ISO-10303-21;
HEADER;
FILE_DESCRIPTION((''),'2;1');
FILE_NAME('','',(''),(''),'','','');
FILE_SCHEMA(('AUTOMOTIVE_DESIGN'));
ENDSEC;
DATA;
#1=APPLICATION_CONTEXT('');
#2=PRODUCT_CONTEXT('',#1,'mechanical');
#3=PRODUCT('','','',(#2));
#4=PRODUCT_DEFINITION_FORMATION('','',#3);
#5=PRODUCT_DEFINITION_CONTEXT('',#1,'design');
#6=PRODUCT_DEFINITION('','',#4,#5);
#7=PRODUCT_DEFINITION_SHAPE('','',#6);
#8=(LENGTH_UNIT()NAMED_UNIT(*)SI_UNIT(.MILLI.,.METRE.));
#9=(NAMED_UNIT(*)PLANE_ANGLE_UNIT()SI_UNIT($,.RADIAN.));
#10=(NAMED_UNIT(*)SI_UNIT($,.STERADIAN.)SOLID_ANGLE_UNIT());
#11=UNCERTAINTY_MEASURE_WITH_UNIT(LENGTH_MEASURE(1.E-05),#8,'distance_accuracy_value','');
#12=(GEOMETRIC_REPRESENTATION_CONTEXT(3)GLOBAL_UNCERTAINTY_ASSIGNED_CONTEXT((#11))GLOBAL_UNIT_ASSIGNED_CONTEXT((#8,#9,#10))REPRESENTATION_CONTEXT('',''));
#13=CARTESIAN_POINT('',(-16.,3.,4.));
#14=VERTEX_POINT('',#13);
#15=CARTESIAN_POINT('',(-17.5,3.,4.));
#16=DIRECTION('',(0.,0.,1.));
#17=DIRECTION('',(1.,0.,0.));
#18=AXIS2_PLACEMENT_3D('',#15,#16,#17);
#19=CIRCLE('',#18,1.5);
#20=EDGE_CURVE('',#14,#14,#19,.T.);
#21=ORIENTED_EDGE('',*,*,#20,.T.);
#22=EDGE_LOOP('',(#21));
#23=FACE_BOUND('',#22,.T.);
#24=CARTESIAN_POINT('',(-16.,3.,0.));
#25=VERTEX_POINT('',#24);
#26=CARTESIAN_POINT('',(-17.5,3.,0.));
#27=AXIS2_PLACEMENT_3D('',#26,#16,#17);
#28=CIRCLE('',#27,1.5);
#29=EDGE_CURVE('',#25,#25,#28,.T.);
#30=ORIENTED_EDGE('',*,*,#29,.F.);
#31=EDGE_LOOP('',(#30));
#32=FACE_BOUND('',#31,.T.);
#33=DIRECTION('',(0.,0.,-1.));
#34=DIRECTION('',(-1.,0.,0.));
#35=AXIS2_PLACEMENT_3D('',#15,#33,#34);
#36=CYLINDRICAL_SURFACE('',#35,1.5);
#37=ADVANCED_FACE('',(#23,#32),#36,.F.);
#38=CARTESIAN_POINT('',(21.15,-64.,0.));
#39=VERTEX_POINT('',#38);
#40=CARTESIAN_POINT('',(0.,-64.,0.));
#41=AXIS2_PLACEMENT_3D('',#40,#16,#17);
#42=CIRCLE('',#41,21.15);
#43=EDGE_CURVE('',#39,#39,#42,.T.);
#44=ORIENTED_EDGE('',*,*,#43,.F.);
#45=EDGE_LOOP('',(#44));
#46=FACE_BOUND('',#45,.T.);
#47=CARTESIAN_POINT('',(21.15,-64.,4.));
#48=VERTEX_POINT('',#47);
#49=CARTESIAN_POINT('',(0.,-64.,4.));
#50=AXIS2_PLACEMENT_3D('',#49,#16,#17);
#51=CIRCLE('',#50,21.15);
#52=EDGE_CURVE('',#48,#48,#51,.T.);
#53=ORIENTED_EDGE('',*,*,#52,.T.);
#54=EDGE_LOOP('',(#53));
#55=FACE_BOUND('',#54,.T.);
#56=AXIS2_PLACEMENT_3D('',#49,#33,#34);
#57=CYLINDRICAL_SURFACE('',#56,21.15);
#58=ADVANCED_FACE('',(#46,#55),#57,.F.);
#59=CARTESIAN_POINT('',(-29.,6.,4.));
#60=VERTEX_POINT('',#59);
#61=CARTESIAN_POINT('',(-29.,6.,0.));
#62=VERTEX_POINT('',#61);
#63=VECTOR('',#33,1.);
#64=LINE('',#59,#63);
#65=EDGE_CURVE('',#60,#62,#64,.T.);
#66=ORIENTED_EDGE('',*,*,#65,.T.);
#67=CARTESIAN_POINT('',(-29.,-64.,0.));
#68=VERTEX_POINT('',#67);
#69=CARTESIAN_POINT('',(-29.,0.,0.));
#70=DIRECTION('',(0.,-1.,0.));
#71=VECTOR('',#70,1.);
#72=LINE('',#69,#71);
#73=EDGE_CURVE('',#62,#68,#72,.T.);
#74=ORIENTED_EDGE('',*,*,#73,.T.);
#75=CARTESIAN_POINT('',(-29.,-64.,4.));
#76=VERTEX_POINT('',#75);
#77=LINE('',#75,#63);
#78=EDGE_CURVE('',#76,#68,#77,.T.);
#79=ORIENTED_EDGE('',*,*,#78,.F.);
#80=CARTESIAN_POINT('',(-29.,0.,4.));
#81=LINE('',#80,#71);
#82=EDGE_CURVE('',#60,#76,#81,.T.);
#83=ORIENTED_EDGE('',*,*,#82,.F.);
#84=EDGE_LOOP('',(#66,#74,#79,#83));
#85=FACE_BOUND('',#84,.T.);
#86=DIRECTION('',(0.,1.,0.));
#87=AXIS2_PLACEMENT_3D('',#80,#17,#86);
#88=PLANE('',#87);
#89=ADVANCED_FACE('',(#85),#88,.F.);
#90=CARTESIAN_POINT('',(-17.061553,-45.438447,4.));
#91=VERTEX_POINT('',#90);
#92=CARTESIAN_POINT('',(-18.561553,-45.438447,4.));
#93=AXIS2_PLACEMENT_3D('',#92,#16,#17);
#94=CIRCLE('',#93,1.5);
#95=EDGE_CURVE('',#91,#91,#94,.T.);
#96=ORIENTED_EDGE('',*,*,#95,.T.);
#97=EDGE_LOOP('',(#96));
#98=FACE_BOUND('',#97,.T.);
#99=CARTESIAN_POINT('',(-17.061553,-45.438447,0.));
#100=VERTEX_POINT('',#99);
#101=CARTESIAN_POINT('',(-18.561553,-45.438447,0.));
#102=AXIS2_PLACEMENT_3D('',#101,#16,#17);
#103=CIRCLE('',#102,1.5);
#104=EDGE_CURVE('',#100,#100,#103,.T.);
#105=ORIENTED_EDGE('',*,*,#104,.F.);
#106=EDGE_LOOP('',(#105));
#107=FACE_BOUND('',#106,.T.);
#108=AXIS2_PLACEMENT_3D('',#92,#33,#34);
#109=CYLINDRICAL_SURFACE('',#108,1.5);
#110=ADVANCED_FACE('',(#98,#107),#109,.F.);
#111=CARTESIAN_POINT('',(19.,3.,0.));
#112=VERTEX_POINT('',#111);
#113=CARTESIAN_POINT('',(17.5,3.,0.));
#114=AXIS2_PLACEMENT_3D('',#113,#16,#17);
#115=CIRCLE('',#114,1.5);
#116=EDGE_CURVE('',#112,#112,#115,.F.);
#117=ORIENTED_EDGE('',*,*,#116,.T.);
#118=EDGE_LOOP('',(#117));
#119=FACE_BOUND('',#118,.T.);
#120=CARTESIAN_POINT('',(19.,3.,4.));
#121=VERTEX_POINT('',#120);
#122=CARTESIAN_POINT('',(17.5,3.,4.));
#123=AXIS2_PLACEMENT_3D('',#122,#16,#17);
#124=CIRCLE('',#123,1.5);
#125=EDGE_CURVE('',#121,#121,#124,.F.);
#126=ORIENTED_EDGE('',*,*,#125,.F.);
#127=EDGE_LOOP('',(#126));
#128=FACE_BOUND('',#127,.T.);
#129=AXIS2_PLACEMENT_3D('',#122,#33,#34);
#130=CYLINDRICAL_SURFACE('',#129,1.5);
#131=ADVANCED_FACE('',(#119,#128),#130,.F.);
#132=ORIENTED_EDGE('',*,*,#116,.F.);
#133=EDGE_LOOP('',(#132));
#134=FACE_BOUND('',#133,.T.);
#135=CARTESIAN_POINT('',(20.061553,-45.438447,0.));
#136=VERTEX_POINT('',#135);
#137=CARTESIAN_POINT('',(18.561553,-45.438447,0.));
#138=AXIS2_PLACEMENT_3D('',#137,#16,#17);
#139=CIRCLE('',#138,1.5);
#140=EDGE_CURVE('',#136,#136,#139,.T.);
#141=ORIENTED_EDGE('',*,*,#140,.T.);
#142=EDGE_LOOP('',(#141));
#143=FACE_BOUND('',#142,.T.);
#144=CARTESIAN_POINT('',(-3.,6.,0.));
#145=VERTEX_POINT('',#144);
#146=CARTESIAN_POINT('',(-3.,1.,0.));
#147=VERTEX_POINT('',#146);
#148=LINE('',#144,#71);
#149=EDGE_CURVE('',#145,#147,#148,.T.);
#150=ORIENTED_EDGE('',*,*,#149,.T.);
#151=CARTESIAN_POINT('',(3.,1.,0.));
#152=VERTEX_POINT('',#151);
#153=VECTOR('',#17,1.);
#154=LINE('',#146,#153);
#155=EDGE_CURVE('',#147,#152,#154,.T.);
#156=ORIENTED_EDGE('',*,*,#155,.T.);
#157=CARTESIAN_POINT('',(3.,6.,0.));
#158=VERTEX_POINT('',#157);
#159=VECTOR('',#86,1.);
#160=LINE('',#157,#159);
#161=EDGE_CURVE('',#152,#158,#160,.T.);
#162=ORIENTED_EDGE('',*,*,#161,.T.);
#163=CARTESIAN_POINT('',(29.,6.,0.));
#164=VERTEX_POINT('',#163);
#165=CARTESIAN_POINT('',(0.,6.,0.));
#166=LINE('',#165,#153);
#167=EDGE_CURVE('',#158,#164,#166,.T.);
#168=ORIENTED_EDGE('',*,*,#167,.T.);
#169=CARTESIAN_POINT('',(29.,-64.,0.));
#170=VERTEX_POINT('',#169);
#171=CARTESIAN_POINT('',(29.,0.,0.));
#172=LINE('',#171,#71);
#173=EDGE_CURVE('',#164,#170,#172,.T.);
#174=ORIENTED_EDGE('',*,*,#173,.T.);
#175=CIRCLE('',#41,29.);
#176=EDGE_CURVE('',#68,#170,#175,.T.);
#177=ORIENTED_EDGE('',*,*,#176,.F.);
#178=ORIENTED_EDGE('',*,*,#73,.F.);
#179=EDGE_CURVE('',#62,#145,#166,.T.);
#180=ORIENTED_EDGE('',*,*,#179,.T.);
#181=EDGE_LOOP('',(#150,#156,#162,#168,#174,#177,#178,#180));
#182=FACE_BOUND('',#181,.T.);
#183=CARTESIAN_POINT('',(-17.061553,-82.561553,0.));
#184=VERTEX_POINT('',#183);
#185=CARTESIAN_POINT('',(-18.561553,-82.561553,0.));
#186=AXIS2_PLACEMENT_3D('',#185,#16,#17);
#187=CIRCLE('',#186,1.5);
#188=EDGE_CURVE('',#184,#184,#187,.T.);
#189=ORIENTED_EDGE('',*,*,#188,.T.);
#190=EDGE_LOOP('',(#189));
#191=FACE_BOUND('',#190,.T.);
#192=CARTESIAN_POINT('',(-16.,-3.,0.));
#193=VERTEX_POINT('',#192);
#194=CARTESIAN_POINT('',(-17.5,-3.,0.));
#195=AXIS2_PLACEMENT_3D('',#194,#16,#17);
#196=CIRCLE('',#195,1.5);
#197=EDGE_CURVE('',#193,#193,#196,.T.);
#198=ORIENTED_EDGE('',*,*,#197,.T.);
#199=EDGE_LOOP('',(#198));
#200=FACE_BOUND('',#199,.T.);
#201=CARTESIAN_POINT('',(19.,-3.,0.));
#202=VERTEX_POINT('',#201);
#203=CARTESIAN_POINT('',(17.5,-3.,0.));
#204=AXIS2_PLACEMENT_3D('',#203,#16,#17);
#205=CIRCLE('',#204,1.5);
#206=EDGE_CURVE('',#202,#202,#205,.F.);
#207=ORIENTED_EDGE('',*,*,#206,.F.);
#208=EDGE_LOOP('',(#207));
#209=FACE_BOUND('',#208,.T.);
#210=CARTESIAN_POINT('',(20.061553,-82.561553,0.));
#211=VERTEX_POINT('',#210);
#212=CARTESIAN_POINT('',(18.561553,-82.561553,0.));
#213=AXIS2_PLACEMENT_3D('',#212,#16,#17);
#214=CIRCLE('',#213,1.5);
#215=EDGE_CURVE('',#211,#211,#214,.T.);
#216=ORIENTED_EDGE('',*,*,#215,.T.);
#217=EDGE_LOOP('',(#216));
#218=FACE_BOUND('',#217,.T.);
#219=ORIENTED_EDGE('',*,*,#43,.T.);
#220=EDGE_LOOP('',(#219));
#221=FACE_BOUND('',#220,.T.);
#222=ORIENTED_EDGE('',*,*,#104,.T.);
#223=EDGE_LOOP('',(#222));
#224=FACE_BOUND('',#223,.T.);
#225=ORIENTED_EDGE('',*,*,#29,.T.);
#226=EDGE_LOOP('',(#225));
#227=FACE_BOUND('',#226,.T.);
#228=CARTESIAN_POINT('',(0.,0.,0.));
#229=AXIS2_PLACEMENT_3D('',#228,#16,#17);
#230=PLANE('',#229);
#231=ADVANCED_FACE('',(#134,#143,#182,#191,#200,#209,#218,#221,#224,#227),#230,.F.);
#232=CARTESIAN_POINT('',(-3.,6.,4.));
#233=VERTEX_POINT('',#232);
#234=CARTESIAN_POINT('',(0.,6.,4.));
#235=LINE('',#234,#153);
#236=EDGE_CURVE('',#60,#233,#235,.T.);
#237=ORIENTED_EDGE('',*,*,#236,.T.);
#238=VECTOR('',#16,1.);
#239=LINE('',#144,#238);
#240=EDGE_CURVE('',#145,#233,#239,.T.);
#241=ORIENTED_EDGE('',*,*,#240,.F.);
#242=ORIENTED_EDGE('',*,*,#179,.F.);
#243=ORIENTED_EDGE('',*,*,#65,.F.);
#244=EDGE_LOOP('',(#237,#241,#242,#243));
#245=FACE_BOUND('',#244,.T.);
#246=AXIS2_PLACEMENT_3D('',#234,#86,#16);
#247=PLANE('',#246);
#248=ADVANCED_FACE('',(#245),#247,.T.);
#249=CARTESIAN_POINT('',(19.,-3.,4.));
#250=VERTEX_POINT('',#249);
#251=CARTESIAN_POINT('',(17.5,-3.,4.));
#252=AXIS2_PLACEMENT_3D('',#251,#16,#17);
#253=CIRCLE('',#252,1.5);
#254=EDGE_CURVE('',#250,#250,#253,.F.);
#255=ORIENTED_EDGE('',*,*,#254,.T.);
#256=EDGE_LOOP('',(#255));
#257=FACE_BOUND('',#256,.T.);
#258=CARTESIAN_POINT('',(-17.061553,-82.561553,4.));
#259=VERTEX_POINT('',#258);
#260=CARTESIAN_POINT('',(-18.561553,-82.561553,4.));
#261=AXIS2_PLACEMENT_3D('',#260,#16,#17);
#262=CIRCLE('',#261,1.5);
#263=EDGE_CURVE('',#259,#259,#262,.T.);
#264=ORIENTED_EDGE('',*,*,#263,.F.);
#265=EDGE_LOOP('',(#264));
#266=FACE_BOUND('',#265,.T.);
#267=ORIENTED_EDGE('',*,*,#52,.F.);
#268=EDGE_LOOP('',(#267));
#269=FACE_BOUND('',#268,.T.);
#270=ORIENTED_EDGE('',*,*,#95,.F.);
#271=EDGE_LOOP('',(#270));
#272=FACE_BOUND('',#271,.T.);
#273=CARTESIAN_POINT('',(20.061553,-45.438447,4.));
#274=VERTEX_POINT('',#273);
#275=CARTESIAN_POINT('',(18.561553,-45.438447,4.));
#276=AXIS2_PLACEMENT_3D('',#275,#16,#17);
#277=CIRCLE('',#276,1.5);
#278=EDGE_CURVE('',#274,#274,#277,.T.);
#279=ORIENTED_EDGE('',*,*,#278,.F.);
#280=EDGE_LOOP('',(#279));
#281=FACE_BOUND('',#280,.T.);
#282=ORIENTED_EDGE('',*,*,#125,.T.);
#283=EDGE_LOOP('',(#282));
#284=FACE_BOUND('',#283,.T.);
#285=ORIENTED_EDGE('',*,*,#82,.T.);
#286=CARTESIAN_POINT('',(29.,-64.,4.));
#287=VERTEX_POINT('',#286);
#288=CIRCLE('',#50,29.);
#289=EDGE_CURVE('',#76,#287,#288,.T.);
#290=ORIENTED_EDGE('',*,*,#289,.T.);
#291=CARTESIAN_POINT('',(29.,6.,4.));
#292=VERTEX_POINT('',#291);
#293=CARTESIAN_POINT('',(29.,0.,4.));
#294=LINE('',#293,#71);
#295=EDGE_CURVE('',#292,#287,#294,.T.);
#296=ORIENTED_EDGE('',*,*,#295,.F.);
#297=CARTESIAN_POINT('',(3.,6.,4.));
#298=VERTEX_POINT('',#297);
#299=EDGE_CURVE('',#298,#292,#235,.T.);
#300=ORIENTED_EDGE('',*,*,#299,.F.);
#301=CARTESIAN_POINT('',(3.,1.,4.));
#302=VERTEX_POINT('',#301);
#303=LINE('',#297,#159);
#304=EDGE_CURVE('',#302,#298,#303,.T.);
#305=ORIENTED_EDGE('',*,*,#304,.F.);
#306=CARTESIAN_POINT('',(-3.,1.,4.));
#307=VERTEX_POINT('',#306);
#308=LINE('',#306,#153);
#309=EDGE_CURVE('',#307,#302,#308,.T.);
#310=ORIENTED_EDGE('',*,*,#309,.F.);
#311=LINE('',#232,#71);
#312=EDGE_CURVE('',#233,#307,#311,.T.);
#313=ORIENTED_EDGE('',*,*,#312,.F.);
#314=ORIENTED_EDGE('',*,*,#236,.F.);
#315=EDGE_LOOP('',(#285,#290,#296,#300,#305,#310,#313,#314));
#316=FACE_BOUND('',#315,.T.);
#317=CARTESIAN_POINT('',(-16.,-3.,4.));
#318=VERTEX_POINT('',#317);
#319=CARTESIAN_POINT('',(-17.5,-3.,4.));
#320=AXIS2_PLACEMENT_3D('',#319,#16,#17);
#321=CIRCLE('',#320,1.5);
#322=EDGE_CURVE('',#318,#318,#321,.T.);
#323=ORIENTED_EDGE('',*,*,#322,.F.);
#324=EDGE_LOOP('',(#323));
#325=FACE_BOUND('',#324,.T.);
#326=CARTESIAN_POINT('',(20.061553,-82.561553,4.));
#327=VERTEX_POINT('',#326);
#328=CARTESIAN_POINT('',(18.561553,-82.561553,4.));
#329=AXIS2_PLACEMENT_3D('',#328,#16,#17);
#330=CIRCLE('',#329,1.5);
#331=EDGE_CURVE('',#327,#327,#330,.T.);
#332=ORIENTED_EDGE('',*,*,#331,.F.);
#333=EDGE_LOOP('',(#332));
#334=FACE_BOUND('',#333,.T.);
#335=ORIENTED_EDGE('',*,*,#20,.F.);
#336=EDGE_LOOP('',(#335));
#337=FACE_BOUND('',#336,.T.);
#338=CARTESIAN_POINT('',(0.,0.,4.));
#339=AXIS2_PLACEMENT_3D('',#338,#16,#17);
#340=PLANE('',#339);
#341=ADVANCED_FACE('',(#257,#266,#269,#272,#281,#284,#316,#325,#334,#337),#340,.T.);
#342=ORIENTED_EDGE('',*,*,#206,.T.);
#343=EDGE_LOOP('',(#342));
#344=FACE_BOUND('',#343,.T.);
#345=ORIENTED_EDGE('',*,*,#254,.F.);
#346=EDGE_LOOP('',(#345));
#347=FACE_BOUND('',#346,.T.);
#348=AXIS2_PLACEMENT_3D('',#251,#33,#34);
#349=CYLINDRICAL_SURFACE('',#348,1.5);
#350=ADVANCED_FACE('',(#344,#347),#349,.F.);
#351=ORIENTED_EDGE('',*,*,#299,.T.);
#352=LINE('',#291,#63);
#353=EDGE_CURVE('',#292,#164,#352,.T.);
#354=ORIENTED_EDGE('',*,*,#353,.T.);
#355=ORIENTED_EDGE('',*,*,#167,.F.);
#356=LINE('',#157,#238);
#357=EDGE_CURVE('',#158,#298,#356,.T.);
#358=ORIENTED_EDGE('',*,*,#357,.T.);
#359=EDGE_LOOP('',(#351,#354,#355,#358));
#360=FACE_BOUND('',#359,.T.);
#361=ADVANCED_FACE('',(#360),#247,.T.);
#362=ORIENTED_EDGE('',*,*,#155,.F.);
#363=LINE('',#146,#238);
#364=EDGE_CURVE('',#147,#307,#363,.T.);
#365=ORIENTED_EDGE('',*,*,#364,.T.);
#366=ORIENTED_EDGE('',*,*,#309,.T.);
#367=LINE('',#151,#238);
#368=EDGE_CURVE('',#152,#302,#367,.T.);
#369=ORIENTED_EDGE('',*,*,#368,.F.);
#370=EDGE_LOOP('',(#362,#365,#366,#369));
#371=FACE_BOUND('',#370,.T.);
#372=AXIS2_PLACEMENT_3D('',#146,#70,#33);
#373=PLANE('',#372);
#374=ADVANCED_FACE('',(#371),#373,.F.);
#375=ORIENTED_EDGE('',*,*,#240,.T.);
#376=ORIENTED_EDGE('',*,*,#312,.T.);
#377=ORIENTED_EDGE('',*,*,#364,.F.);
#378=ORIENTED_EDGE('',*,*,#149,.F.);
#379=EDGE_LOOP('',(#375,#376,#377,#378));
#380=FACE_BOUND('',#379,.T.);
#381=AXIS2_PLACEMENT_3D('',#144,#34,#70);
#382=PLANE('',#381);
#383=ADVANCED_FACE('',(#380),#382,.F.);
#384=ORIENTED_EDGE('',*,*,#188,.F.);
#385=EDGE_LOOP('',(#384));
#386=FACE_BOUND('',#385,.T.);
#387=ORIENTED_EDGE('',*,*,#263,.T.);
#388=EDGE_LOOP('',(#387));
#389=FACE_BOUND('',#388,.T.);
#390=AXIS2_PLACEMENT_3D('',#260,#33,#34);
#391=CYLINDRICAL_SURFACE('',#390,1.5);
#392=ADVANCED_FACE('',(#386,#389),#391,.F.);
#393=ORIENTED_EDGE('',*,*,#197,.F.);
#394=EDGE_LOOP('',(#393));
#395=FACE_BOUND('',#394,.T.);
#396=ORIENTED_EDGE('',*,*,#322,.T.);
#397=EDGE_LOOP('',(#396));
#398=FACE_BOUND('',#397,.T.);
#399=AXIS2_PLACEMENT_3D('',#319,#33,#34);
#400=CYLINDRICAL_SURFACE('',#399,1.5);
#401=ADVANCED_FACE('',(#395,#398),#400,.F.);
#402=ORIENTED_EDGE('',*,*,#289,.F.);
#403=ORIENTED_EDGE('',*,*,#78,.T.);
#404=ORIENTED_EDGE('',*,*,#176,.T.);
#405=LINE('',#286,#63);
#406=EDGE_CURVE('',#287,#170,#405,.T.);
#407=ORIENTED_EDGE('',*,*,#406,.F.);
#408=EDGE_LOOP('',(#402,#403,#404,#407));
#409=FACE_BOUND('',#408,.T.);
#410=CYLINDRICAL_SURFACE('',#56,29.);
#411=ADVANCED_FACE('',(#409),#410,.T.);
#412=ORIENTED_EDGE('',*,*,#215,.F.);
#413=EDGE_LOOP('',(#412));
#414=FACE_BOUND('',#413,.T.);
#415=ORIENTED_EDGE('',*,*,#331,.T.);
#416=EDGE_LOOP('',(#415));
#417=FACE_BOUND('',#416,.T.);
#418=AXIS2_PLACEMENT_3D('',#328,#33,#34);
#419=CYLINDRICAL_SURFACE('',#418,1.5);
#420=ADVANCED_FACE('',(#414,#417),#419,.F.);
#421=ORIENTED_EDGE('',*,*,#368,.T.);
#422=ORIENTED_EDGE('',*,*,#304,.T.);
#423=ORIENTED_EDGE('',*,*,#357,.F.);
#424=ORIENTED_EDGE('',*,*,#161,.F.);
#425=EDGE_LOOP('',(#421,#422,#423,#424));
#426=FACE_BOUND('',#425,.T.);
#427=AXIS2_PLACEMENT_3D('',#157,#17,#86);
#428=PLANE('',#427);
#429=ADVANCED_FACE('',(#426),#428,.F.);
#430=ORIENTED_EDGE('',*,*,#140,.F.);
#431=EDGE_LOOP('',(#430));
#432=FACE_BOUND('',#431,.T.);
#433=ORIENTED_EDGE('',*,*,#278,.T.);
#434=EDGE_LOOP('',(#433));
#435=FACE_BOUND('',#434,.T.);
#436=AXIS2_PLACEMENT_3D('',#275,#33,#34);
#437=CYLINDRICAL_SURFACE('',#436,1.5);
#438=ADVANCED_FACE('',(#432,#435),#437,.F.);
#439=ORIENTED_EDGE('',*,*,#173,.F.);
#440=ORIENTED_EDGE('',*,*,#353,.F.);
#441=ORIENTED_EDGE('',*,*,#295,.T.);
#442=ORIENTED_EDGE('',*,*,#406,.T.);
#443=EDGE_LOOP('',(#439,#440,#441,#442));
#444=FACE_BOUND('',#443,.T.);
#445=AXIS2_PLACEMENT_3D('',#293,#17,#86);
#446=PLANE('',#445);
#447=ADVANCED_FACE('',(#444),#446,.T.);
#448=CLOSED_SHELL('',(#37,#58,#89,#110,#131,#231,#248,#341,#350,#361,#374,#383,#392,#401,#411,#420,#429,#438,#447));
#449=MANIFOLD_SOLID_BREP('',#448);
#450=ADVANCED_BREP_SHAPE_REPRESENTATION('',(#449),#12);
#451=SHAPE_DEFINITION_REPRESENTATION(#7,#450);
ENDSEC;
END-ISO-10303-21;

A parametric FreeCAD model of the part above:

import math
import FreeCAD as App
import Part
import Sketcher
Q = App.Units.Quantity


def add_polygon(sketch, points):
    """Adds a closed chain of lines whose ends are joined by coincident constraints."""
    first, n = sketch.GeometryCount, len(points)
    for a, b in zip(points, points[1:] + points[:1]):
        sketch.addGeometry(Part.LineSegment(App.Vector(*a, 0), App.Vector(*b, 0)), False)
    for i in range(n):
        sketch.addConstraint(Sketcher.Constraint("Coincident", first + i, 2, first + (i + 1) % n, 1))

doc = App.newDocument("Part")
body = doc.addObject("PartDesign::Body", "Body")

# Sketch on XY plane
sketch1 = doc.addObject("Sketcher::SketchObject", "Sketch")
body.addObject(sketch1)
sketch1.AttachmentSupport = (doc.XY_Plane, [""])
sketch1.MapMode = "FlatFace"
sketch1.addGeometry(Part.LineSegment(App.Vector(29, 6, 0), App.Vector(-29, 6, 0)), False)
sketch1.addGeometry(Part.LineSegment(App.Vector(-29, 6, 0), App.Vector(-29, -64, 0)), False)
sketch1.addGeometry(Part.ArcOfCircle(Part.Circle(App.Vector(0, -64, 0), App.Vector(0, 0, 1), 29), math.radians(180), math.radians(360)), False)
sketch1.addGeometry(Part.LineSegment(App.Vector(29, -64, 0), App.Vector(29, 6, 0)), False)
sketch1.addGeometry(Part.Circle(App.Vector(18.6, -82.6, 0), App.Vector(0, 0, 1), 1.5), False)
sketch1.addGeometry(Part.Circle(App.Vector(18.6, -45.4, 0), App.Vector(0, 0, 1), 1.5), False)
sketch1.addGeometry(Part.Circle(App.Vector(0, -64, 0), App.Vector(0, 0, 1), 21.1), False)
sketch1.addGeometry(Part.Circle(App.Vector(-18.6, -82.6, 0), App.Vector(0, 0, 1), 1.5), False)
sketch1.addGeometry(Part.Circle(App.Vector(-18.6, -45.4, 0), App.Vector(0, 0, 1), 1.5), False)
sketch1.addGeometry(Part.Circle(App.Vector(17.5, -3, 0), App.Vector(0, 0, 1), 1.5), False)
sketch1.addGeometry(Part.Circle(App.Vector(17.5, 3, 0), App.Vector(0, 0, 1), 1.5), False)
sketch1.addGeometry(Part.Circle(App.Vector(-17.5, -3, 0), App.Vector(0, 0, 1), 1.5), False)
sketch1.addGeometry(Part.Circle(App.Vector(-17.5, 3, 0), App.Vector(0, 0, 1), 1.5), False)
sketch1.addConstraint(Sketcher.Constraint("Coincident", 0, 2, 1, 1))
sketch1.addConstraint(Sketcher.Constraint("Tangent", 1, 2, 2, 1))
sketch1.addConstraint(Sketcher.Constraint("Tangent", 2, 2, 3, 1))
sketch1.addConstraint(Sketcher.Constraint("Coincident", 3, 2, 0, 1))
sketch1.addConstraint(Sketcher.Constraint("Horizontal", 0))
sketch1.addConstraint(Sketcher.Constraint("Vertical", 1))
sketch1.addConstraint(Sketcher.Constraint("Vertical", 3))
sketch1.addConstraint(Sketcher.Constraint("Coincident", 6, 3, 2, 3))
sketch1.addConstraint(Sketcher.Constraint("Equal", 4, 5))
sketch1.addConstraint(Sketcher.Constraint("Equal", 5, 7))
sketch1.addConstraint(Sketcher.Constraint("Equal", 7, 8))
sketch1.addConstraint(Sketcher.Constraint("Equal", 8, 9))
sketch1.addConstraint(Sketcher.Constraint("Equal", 9, 10))
sketch1.addConstraint(Sketcher.Constraint("Equal", 10, 11))
sketch1.addConstraint(Sketcher.Constraint("Equal", 11, 12))
sketch1.addConstraint(Sketcher.Constraint("Symmetric", 10, 3, 11, 3, -1, 1))
sketch1.addConstraint(Sketcher.Constraint("Symmetric", 9, 3, 12, 3, -1, 1))
sketch1.addConstraint(Sketcher.Constraint("Symmetric", 4, 3, 7, 3, -2))
sketch1.addConstraint(Sketcher.Constraint("Symmetric", 5, 3, 8, 3, -2))
sketch1.addConstraint(Sketcher.Constraint("Symmetric", 9, 3, 11, 3, -2))
sketch1.addConstraint(Sketcher.Constraint("PointOnObject", 2, 3, -2))
sketch1.addConstraint(Sketcher.Constraint("Vertical", 4, 3, 5, 3))
sketch1.addConstraint(Sketcher.Constraint("Diameter", 4, Q("3 mm")))
sketch1.addConstraint(Sketcher.Constraint("Radius", 2, Q("29 mm")))
sketch1.addConstraint(Sketcher.Constraint("Diameter", 6, Q("42.3 mm")))
sketch1.addConstraint(Sketcher.Constraint("DistanceY", 1, 2, 1, 1, Q("70 mm")))
sketch1.addConstraint(Sketcher.Constraint("DistanceY", 2, 3, -1, 1, Q("64 mm")))
sketch1.addConstraint(Sketcher.Constraint("DistanceY", 9, 3, -1, 1, Q("3 mm")))
sketch1.addConstraint(Sketcher.Constraint("DistanceX", 11, 3, 9, 3, Q("35 mm")))
sketch1.addConstraint(Sketcher.Constraint("DistanceX", -1, 1, 4, 3, Q("18.561553 mm")))
sketch1.addConstraint(Sketcher.Constraint("DistanceY", 4, 3, -1, 1, Q("82.561553 mm")))
sketch1.addConstraint(Sketcher.Constraint("DistanceY", 5, 3, -1, 1, Q("45.438447 mm")))
pad1 = doc.addObject("PartDesign::Pad", "Pad")
body.addObject(pad1)
pad1.Profile = sketch1
pad1.Length = 4

# Sketch on XY plane
sketch2 = doc.addObject("Sketcher::SketchObject", "Sketch001")
body.addObject(sketch2)
sketch2.AttachmentSupport = (doc.XY_Plane, [""])
sketch2.MapMode = "FlatFace"
sketch2.AttachmentOffset = App.Placement(App.Vector(0, 0, 4), App.Rotation())
add_polygon(sketch2, [(-3, 6), (-3, 1), (3, 1), (3, 6)])  # lines 0-3
sketch2.addConstraint(Sketcher.Constraint("Vertical", 0))
sketch2.addConstraint(Sketcher.Constraint("Horizontal", 1))
sketch2.addConstraint(Sketcher.Constraint("Vertical", 2))
sketch2.addConstraint(Sketcher.Constraint("Horizontal", 3))
sketch2.addConstraint(Sketcher.Constraint("DistanceX", 1, 1, 1, 2, Q("6 mm")))
sketch2.addConstraint(Sketcher.Constraint("DistanceY", 0, 2, 0, 1, Q("5 mm")))
sketch2.addConstraint(Sketcher.Constraint("DistanceX", 0, 2, -1, 1, Q("3 mm")))
sketch2.addConstraint(Sketcher.Constraint("DistanceY", -1, 1, 0, 2, Q("1 mm")))
pocket1 = doc.addObject("PartDesign::Pocket", "Pocket")
body.addObject(pocket1)
pocket1.Profile = sketch2
pocket1.Type = "ThroughAll"

doc.recompute()
